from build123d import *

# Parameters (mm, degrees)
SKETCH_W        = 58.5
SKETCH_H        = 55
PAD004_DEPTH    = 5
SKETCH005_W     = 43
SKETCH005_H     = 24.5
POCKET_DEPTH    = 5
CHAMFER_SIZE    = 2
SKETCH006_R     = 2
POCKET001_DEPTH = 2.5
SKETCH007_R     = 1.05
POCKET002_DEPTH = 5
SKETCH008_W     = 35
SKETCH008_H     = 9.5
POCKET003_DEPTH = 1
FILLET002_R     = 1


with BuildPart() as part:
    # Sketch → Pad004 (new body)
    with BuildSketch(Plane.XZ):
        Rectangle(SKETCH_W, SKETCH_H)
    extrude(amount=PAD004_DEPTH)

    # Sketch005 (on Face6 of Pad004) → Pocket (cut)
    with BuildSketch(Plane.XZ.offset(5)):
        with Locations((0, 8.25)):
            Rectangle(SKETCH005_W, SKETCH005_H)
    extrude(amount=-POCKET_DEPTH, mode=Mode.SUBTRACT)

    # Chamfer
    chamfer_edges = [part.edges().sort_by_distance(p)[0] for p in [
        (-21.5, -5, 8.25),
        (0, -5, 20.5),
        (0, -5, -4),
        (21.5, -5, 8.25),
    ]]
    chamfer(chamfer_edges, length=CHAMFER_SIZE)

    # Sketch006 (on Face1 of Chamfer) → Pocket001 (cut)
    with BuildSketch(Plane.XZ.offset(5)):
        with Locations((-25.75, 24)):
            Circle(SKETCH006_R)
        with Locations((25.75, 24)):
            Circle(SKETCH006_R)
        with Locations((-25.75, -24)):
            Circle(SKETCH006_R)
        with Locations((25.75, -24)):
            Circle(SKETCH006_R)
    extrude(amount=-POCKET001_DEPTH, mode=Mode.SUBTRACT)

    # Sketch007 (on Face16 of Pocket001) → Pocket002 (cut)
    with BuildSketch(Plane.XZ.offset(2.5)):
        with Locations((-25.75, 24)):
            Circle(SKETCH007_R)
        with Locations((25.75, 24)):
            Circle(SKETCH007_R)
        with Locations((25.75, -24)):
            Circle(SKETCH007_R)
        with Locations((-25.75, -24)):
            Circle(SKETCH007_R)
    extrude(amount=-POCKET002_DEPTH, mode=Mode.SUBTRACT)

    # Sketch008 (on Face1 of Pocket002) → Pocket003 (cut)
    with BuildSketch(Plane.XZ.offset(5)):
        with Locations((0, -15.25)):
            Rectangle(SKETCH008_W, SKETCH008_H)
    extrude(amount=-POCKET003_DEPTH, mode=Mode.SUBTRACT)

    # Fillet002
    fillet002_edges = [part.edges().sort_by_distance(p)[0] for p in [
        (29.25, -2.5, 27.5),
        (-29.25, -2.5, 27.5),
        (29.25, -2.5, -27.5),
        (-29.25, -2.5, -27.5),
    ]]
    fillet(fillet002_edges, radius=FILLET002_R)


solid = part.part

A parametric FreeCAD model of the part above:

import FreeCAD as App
import Part
import Sketcher
from FreeCAD import Vector


def edges_at(feature, points):
    """Names of the edges that pass closest to the given points."""
    edges = feature.Shape.Edges
    near = lambda p: min(range(len(edges)), key=lambda i: edges[i].distToShape(Part.Vertex(*p))[0])
    return sorted({f"Edge{near(p) + 1}" for p in points})


def add_polygon(sketch, points):
    """Adds a closed chain of lines whose ends are joined by coincident constraints."""
    first, n = sketch.GeometryCount, len(points)
    for a, b in zip(points, points[1:] + points[:1]):
        sketch.addGeometry(Part.LineSegment(App.Vector(*a, 0), App.Vector(*b, 0)), False)
    for i in range(n):
        sketch.addConstraint(Sketcher.Constraint("Coincident", first + i, 2, first + (i + 1) % n, 1))

doc = App.newDocument("Part")
body = doc.addObject("PartDesign::Body", "Body")

sketch1 = body.newObject("Sketcher::SketchObject", "Sketch")
sketch1.AttachmentSupport = (doc.getObject("XZ_Plane"), [""])
sketch1.MapMode = "FlatFace"
add_polygon(sketch1, [(-29.25, 27.5), (-29.25, -27.5), (29.25, -27.5), (29.25, 27.5)])
sketch1.addConstraint([
    Sketcher.Constraint("Vertical", 0),
    Sketcher.Constraint("Horizontal", 1),
    Sketcher.Constraint("Vertical", 2),
    Sketcher.Constraint("Horizontal", 3),
    Sketcher.Constraint("Symmetric", 0, 2, 2, 2, -1, 1),
    Sketcher.Constraint("DistanceY", 0, 2, 0, 1, 55.0),
    Sketcher.Constraint("DistanceX", 1, 1, 1, 2, 58.5),
])
pad1 = body.newObject("PartDesign::Pad", "Pad")
pad1.Profile = sketch1
pad1.Length = 5

sketch2 = body.newObject("Sketcher::SketchObject", "Sketch001")
sketch2.AttachmentSupport = (doc.getObject("XZ_Plane"), [""])
sketch2.MapMode = "FlatFace"
sketch2.AttachmentOffset = App.Placement(Vector(0, 0, 5), App.Rotation())
add_polygon(sketch2, [(-21.5, 20.5), (-21.5, -4), (21.5, -4), (21.5, 20.5)])
sketch2.addConstraint([
    Sketcher.Constraint("Vertical", 0),
    Sketcher.Constraint("Horizontal", 1),
    Sketcher.Constraint("Vertical", 2),
    Sketcher.Constraint("Horizontal", 3),
    Sketcher.Constraint("DistanceX", 1, 1, 1, 2, 43.0),
    Sketcher.Constraint("DistanceY", 0, 2, 0, 1, 24.5),
    Sketcher.Constraint("DistanceY", 0, 2, -1, 1, 4.0),
    Sketcher.Constraint("DistanceX", 0, 2, -1, 1, 21.5),
])
pocket1 = body.newObject("PartDesign::Pocket", "Pocket")
pocket1.Profile = sketch2
pocket1.Length = 5
doc.recompute()

chamfer = body.newObject("PartDesign::Chamfer", "Chamfer")
chamfer.Base = (pocket1, edges_at(pocket1, [
    (-21.5, -5, 8.25),
    (0, -5, 20.5),
    (0, -5, -4),
    (21.5, -5, 8.25),
]))
chamfer.Size = 2

sketch3 = body.newObject("Sketcher::SketchObject", "Sketch002")
sketch3.AttachmentSupport = (doc.getObject("XZ_Plane"), [""])
sketch3.MapMode = "FlatFace"
sketch3.AttachmentOffset = App.Placement(Vector(0, 0, 5), App.Rotation())
sketch3.addGeometry([
    Part.Circle(Vector(-25.75, 24, 0), Vector(0, 0, 1), 2),
    Part.Circle(Vector(25.75, 24, 0), Vector(0, 0, 1), 2),
    Part.Circle(Vector(-25.75, -24, 0), Vector(0, 0, 1), 2),
    Part.Circle(Vector(25.75, -24, 0), Vector(0, 0, 1), 2),
], False)
sketch3.addConstraint([
    Sketcher.Constraint("Equal", 0, 1),
    Sketcher.Constraint("Equal", 1, 2),
    Sketcher.Constraint("Equal", 2, 3),
    Sketcher.Constraint("Symmetric", 1, 3, 2, 3, -1, 1),
    Sketcher.Constraint("Symmetric", 0, 3, 3, 3, -1, 1),
    Sketcher.Constraint("Symmetric", 0, 3, 1, 3, -2),
    Sketcher.Constraint("Diameter", 0, 4.0),
    Sketcher.Constraint("DistanceY", -1, 1, 0, 3, 24.0),
    Sketcher.Constraint("DistanceX", 0, 3, 1, 3, 51.5),
])
pocket2 = body.newObject("PartDesign::Pocket", "Pocket001")
pocket2.Profile = sketch3
pocket2.Length = 2.5

sketch4 = body.newObject("Sketcher::SketchObject", "Sketch003")
sketch4.AttachmentSupport = (doc.getObject("XZ_Plane"), [""])
sketch4.MapMode = "FlatFace"
sketch4.AttachmentOffset = App.Placement(Vector(0, 0, 2.5), App.Rotation())
sketch4.addGeometry([
    Part.Circle(Vector(-25.75, 24, 0), Vector(0, 0, 1), 1.05),
    Part.Circle(Vector(25.75, 24, 0), Vector(0, 0, 1), 1.05),
    Part.Circle(Vector(25.75, -24, 0), Vector(0, 0, 1), 1.05),
    Part.Circle(Vector(-25.75, -24, 0), Vector(0, 0, 1), 1.05),
], False)
sketch4.addConstraint([
    Sketcher.Constraint("Equal", 0, 1),
    Sketcher.Constraint("Equal", 1, 2),
    Sketcher.Constraint("Equal", 2, 3),
    Sketcher.Constraint("Symmetric", 0, 3, 2, 3, -1, 1),
    Sketcher.Constraint("Symmetric", 1, 3, 3, 3, -1, 1),
    Sketcher.Constraint("Symmetric", 0, 3, 1, 3, -2),
    Sketcher.Constraint("Diameter", 0, 2.1),
    Sketcher.Constraint("DistanceY", -1, 1, 0, 3, 24.0),
    Sketcher.Constraint("DistanceX", 0, 3, 1, 3, 51.5),
])
pocket3 = body.newObject("PartDesign::Pocket", "Pocket002")
pocket3.Profile = sketch4
pocket3.Length = 5

sketch5 = body.newObject("Sketcher::SketchObject", "Sketch004")
sketch5.AttachmentSupport = (doc.getObject("XZ_Plane"), [""])
sketch5.MapMode = "FlatFace"
sketch5.AttachmentOffset = App.Placement(Vector(0, 0, 5), App.Rotation())
add_polygon(sketch5, [(-17.5, -10.5), (-17.5, -20), (17.5, -20), (17.5, -10.5)])
sketch5.addConstraint([
    Sketcher.Constraint("Vertical", 0),
    Sketcher.Constraint("Horizontal", 1),
    Sketcher.Constraint("Vertical", 2),
    Sketcher.Constraint("Horizontal", 3),
    Sketcher.Constraint("DistanceX", 1, 1, 1, 2, 35.0),
    Sketcher.Constraint("DistanceY", 0, 2, 0, 1, 9.5),
    Sketcher.Constraint("DistanceY", 0, 2, -1, 1, 20.0),
    Sketcher.Constraint("DistanceX", 0, 2, -1, 1, 17.5),
])
pocket4 = body.newObject("PartDesign::Pocket", "Pocket003")
pocket4.Profile = sketch5
pocket4.Length = 1
doc.recompute()

fillet = body.newObject("PartDesign::Fillet", "Fillet")
fillet.Base = (pocket4, edges_at(pocket4, [
    (29.25, -2.5, 27.5),
    (-29.25, -2.5, 27.5),
    (29.25, -2.5, -27.5),
    (-29.25, -2.5, -27.5),
]))
fillet.Radius = 1

doc.recompute()
